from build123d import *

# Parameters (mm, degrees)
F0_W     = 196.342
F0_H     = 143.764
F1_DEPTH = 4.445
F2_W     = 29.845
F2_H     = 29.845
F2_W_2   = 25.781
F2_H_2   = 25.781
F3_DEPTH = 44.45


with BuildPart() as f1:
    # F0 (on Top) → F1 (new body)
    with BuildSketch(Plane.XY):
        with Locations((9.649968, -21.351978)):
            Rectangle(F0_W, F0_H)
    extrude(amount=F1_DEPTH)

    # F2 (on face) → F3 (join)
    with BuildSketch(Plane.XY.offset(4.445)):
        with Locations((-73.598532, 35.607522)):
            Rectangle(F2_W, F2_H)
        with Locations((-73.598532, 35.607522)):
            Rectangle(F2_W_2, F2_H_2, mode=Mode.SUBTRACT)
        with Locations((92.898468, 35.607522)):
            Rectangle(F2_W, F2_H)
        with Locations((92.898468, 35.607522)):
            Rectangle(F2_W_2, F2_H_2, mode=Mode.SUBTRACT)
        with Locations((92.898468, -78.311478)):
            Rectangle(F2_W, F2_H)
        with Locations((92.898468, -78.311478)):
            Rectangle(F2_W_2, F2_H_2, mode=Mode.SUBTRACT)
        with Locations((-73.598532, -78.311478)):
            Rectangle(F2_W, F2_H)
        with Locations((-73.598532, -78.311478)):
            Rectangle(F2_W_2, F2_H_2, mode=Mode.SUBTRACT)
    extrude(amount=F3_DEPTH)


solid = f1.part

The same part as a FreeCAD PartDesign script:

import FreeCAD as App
import Part
import Sketcher
Q = App.Units.Quantity


def add_polygon(sketch, points):
    """Adds a closed chain of lines whose ends are joined by coincident constraints."""
    first, n = sketch.GeometryCount, len(points)
    for a, b in zip(points, points[1:] + points[:1]):
        sketch.addGeometry(Part.LineSegment(App.Vector(*a, 0), App.Vector(*b, 0)), False)
    for i in range(n):
        sketch.addConstraint(Sketcher.Constraint("Coincident", first + i, 2, first + (i + 1) % n, 1))

doc = App.newDocument("Part")
params = doc.addObject("Spreadsheet::Sheet", "Params")
for row, (alias, value) in enumerate([
    ("sketch1_width", "7.73 in"),
    ("sketch1_height", "5.66 in"),
    ("pad1_length", "0.175 in"),
    ("sketch2_width", "1.175 in"),
    ("sketch2_width2", "1.015 in"),
    ("pad2_length", "1.75 in"),
], start=1):
    params.set(f"A{row}", alias)
    params.set(f"B{row}", "=" + value)
    params.setAlias(f"B{row}", alias)

body = doc.addObject("PartDesign::Body", "Body")

# Sketch on XY plane
sketch1 = doc.addObject("Sketcher::SketchObject", "Sketch")
body.addObject(sketch1)
sketch1.AttachmentSupport = (doc.XY_Plane, [""])
sketch1.MapMode = "FlatFace"
add_polygon(sketch1, [(-89, 51), (-89, -93), (108, -93), (108, 51)])  # lines 0-3
sketch1.addConstraint([
    Sketcher.Constraint("Vertical", 0),
    Sketcher.Constraint("Horizontal", 1),
    Sketcher.Constraint("Vertical", 2),
    Sketcher.Constraint("Horizontal", 3),
    Sketcher.Constraint("DistanceX", 1, 1, 1, 2, Q("7.73 in")),
    Sketcher.Constraint("DistanceY", 0, 2, 0, 1, Q("5.66 in")),
    Sketcher.Constraint("DistanceX", 0, 2, -1, 1, Q("88.521032 mm")),
    Sketcher.Constraint("DistanceY", 0, 2, -1, 1, Q("93.233978 mm")),
])
sketch1.setExpression("Constraints[8]", "Params.sketch1_width")
sketch1.setExpression("Constraints[9]", "Params.sketch1_height")
pad1 = doc.addObject("PartDesign::Pad", "Pad")
body.addObject(pad1)
pad1.Profile = sketch1
pad1.setExpression("Length", "Params.pad1_length")

# Sketch on XY plane
sketch2 = doc.addObject("Sketcher::SketchObject", "Sketch001")
body.addObject(sketch2)
sketch2.AttachmentSupport = (doc.XY_Plane, [""])
sketch2.MapMode = "FlatFace"
sketch2.AttachmentOffset = App.Placement(App.Vector(0, 0, 0.175 * 25.4), App.Rotation())
add_polygon(sketch2, [(-89, 51), (-89, 21), (-59, 21), (-59, 51)])  # lines 0-3
add_polygon(sketch2, [(-61, 23), (-86, 23), (-86, 48), (-61, 48)])  # lines 4-7
add_polygon(sketch2, [(78, 51), (78, 21), (108, 21), (108, 51)])  # lines 8-11
add_polygon(sketch2, [(106, 23), (80, 23), (80, 48), (106, 48)])  # lines 12-15
add_polygon(sketch2, [(78, -63), (78, -93), (108, -93), (108, -63)])  # lines 16-19
add_polygon(sketch2, [(106, -91), (80, -91), (80, -65), (106, -65)])  # lines 20-23
add_polygon(sketch2, [(-89, -63), (-89, -93), (-59, -93), (-59, -63)])  # lines 24-27
add_polygon(sketch2, [(-61, -91), (-86, -91), (-86, -65), (-61, -65)])  # lines 28-31
sketch2.addConstraint([
    Sketcher.Constraint("Vertical", 0),
    Sketcher.Constraint("Horizontal", 1),
    Sketcher.Constraint("Vertical", 2),
    Sketcher.Constraint("Horizontal", 3),
    Sketcher.Constraint("Horizontal", 4),
    Sketcher.Constraint("Vertical", 5),
    Sketcher.Constraint("Horizontal", 6),
    Sketcher.Constraint("Vertical", 7),
    Sketcher.Constraint("Vertical", 8),
    Sketcher.Constraint("Horizontal", 9),
    Sketcher.Constraint("Vertical", 10),
    Sketcher.Constraint("Horizontal", 11),
    Sketcher.Constraint("Horizontal", 12),
    Sketcher.Constraint("Vertical", 13),
    Sketcher.Constraint("Horizontal", 14),
    Sketcher.Constraint("Vertical", 15),
    Sketcher.Constraint("Vertical", 16),
    Sketcher.Constraint("Horizontal", 17),
    Sketcher.Constraint("Vertical", 18),
    Sketcher.Constraint("Horizontal", 19),
    Sketcher.Constraint("Horizontal", 20),
    Sketcher.Constraint("Vertical", 21),
    Sketcher.Constraint("Horizontal", 22),
    Sketcher.Constraint("Vertical", 23),
    Sketcher.Constraint("Vertical", 24),
    Sketcher.Constraint("Horizontal", 25),
    Sketcher.Constraint("Vertical", 26),
    Sketcher.Constraint("Horizontal", 27),
    Sketcher.Constraint("Horizontal", 28),
    Sketcher.Constraint("Vertical", 29),
    Sketcher.Constraint("Horizontal", 30),
    Sketcher.Constraint("Vertical", 31),
    Sketcher.Constraint("Horizontal", 1, 2, 8, 2),
    Sketcher.Constraint("Horizontal", 3, 2, 10, 2),
    Sketcher.Constraint("Horizontal", 7, 2, 12, 2),
    Sketcher.Constraint("Horizontal", 6, 2, 13, 2),
    Sketcher.Constraint("Horizontal", 17, 2, 24, 2),
    Sketcher.Constraint("Horizontal", 19, 2, 26, 2),
    Sketcher.Constraint("Horizontal", 23, 2, 28, 2),
    Sketcher.Constraint("Horizontal", 22, 2, 29, 2),
    Sketcher.Constraint("Vertical", 11, 2, 16, 2),
    Sketcher.Constraint("Vertical", 10, 2, 17, 2),
    Sketcher.Constraint("Vertical", 13, 2, 20, 2),
    Sketcher.Constraint("Vertical", 15, 2, 22, 2),
    Sketcher.Constraint("Vertical", 3, 2, 24, 2),
    Sketcher.Constraint("Vertical", 2, 2, 25, 2),
    Sketcher.Constraint("Vertical", 5, 2, 28, 2),
    Sketcher.Constraint("Vertical", 7, 2, 30, 2),
    Sketcher.Constraint("Equal", 3, 9),
    Sketcher.Constraint("Equal", 6, 12),
    Sketcher.Constraint("Equal", 27, 0),
    Sketcher.Constraint("Equal", 30, 5),
    Sketcher.Constraint("Equal", 10, 16),
    Sketcher.Constraint("Equal", 15, 21),
    Sketcher.Constraint("DistanceX", 1, 1, 1, 2, Q("1.175 in")),
    Sketcher.Constraint("DistanceX", 4, 2, 4, 1, Q("1.015 in")),
    Sketcher.Constraint("DistanceX", 0, 2, 4, 2, Q("0.08 in")),
    Sketcher.Constraint("DistanceY", 0, 2, 4, 2, Q("0.08 in")),
    Sketcher.Constraint("DistanceX", 1, 2, 8, 2, Q("5.38 in")),
    Sketcher.Constraint("DistanceX", 8, 2, 12, 2, Q("0.08 in")),
    Sketcher.Constraint("DistanceY", 16, 2, 13, 2, Q("5.58 in")),
    Sketcher.Constraint("DistanceY", 16, 2, 20, 2, Q("0.08 in")),
    Sketcher.Constraint("DistanceY", -1, 1, 0, 2, Q("20.685022 mm")),
    Sketcher.Constraint("DistanceX", 4, 2, -1, 1, Q("86.489032 mm")),
])
sketch2.setExpression("Constraints[86]", "Params.sketch2_width")
sketch2.setExpression("Constraints[87]", "Params.sketch2_width2")
pad2 = doc.addObject("PartDesign::Pad", "Pad001")
body.addObject(pad2)
pad2.Profile = sketch2
pad2.setExpression("Length", "Params.pad2_length")

doc.recompute()
